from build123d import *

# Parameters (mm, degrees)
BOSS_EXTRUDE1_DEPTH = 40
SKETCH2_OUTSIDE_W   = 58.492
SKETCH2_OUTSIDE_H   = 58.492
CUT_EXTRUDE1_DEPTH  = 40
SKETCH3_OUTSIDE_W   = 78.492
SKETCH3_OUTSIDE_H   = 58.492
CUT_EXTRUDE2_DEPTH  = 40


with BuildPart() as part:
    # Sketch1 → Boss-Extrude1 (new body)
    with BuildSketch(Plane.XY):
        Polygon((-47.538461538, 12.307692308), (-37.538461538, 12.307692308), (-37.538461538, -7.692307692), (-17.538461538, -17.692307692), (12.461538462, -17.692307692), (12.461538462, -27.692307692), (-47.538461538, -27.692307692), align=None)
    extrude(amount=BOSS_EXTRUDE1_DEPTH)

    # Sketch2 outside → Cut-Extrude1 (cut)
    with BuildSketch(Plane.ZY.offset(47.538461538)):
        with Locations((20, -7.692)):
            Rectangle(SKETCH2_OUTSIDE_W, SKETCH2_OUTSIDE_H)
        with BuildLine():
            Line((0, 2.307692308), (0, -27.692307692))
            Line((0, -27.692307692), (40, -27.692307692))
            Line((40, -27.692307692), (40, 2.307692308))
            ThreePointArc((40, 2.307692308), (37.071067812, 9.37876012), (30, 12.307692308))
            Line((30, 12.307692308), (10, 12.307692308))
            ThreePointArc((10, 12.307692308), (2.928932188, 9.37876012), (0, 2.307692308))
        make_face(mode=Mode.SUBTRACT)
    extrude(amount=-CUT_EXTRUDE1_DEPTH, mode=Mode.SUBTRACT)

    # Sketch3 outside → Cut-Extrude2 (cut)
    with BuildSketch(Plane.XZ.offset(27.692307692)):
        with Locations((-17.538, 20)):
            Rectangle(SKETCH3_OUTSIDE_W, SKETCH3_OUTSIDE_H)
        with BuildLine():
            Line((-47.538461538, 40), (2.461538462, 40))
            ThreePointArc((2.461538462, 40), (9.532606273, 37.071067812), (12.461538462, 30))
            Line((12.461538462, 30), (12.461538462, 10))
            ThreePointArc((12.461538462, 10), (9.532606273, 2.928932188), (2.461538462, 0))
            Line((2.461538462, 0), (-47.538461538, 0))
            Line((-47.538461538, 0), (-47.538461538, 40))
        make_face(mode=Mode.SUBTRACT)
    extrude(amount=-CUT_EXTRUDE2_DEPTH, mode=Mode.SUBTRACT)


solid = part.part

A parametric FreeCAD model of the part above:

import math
import FreeCAD as App
import Part
import Sketcher

V = App.Vector
Q = App.Units.Quantity


def add_polygon(sketch, points):
    """Adds a closed chain of lines whose ends are joined by coincident constraints."""
    first, n = sketch.GeometryCount, len(points)
    for a, b in zip(points, points[1:] + points[:1]):
        sketch.addGeometry(Part.LineSegment(App.Vector(*a, 0), App.Vector(*b, 0)), False)
    for i in range(n):
        sketch.addConstraint(Sketcher.Constraint("Coincident", first + i, 2, first + (i + 1) % n, 1))

doc = App.newDocument("Part")
params = doc.addObject("Spreadsheet::Sheet", "Params")
for row, (alias, value) in enumerate([
    ("sketch1_width", "10 mm"),
    ("sketch1_width2", "60 mm"),
    ("sketch1_width3", "30 mm"),
    ("sketch1_height", "40 mm"),
    ("sketch1_height2", "20 mm"),
    ("pad1_length", "40 mm"),
    ("sketch2_radius", "10 mm"),
    ("sketch2_width", "30 mm"),
    ("sketch2_height", "20 mm"),
    ("pocket1_length", "40 mm"),
    ("sketch3_radius", "10 mm"),
    ("sketch3_width", "50 mm"),
    ("sketch3_height", "40 mm"),
    ("pocket2_length", "40 mm"),
], start=1):
    params.set(f"A{row}", alias)
    params.set(f"B{row}", "=" + value)
    params.setAlias(f"B{row}", alias)

body = doc.addObject("PartDesign::Body", "Body")

# Sketch on XY plane
sketch1 = doc.addObject("Sketcher::SketchObject", "Sketch")
body.addObject(sketch1)
sketch1.AttachmentSupport = (doc.XY_Plane, [""])
sketch1.MapMode = "FlatFace"
add_polygon(sketch1, [(-38, 12), (-48, 12), (-48, -28), (12, -28), (12, -18), (-18, -18), (-38, -8)])  # lines 0-6
sketch1.addConstraint(Sketcher.Constraint("Horizontal", 0))
sketch1.addConstraint(Sketcher.Constraint("Vertical", 1))
sketch1.addConstraint(Sketcher.Constraint("Horizontal", 2))
sketch1.addConstraint(Sketcher.Constraint("Vertical", 3))
sketch1.addConstraint(Sketcher.Constraint("Horizontal", 4))
sketch1.addConstraint(Sketcher.Constraint("Vertical", 6))
sketch1.addConstraint(Sketcher.Constraint("Equal", 0, 3))
sketch1.addConstraint(Sketcher.Constraint("DistanceX", 0, 2, 0, 1, Q("10 mm")))
sketch1.addConstraint(Sketcher.Constraint("DistanceX", 2, 1, 2, 2, Q("60 mm")))
sketch1.addConstraint(Sketcher.Constraint("DistanceX", 4, 2, 4, 1, Q("30 mm")))
sketch1.addConstraint(Sketcher.Constraint("DistanceY", 1, 2, 1, 1, Q("40 mm")))
sketch1.addConstraint(Sketcher.Constraint("DistanceY", 6, 1, 6, 2, Q("20 mm")))
sketch1.addConstraint(Sketcher.Constraint("DistanceX", 0, 2, -1, 1, Q("47.538462 mm")))
sketch1.addConstraint(Sketcher.Constraint("DistanceY", -1, 1, 0, 2, Q("12.307692 mm")))
sketch1.setExpression("Constraints[14]", "Params.sketch1_width")
sketch1.setExpression("Constraints[15]", "Params.sketch1_width2")
sketch1.setExpression("Constraints[16]", "Params.sketch1_width3")
sketch1.setExpression("Constraints[17]", "Params.sketch1_height")
sketch1.setExpression("Constraints[18]", "Params.sketch1_height2")
pad1 = doc.addObject("PartDesign::Pad", "Pad")
body.addObject(pad1)
pad1.Profile = sketch1
pad1.setExpression("Length", "Params.pad1_length")

# Sketch on YZ plane
sketch2 = doc.addObject("Sketcher::SketchObject", "Sketch001")
body.addObject(sketch2)
sketch2.AttachmentSupport = (doc.YZ_Plane, [""])
sketch2.MapMode = "FlatFace"
sketch2.AttachmentOffset = App.Placement(V(0, 0, -47.538462), App.Rotation())
add_polygon(sketch2, [(22, -9), (-37, -9), (-37, 49), (22, 49)])  # lines 0-3
sketch2.addGeometry(Part.LineSegment(V(-28, 0, 0), V(2, 0, 0)), False)  # 4
sketch2.addGeometry(Part.ArcOfCircle(Part.Circle(V(2, 10, 0), V(0, 0, 1), 10), math.radians(-90), math.radians(0)), False)  # 5
sketch2.addGeometry(Part.LineSegment(V(12, 10, 0), V(12, 30, 0)), False)  # 6
sketch2.addGeometry(Part.ArcOfCircle(Part.Circle(V(2, 30, 0), V(0, 0, 1), 10), math.radians(0), math.radians(90)), False)  # 7
sketch2.addGeometry(Part.LineSegment(V(2, 40, 0), V(-28, 40, 0)), False)  # 8
sketch2.addGeometry(Part.LineSegment(V(-28, 40, 0), V(-28, 0, 0)), False)  # 9
sketch2.addConstraint(Sketcher.Constraint("Tangent", 4, 2, 5, 1))
sketch2.addConstraint(Sketcher.Constraint("Tangent", 5, 2, 6, 1))
sketch2.addConstraint(Sketcher.Constraint("Tangent", 6, 2, 7, 1))
sketch2.addConstraint(Sketcher.Constraint("Tangent", 7, 2, 8, 1))
sketch2.addConstraint(Sketcher.Constraint("Coincident", 8, 2, 9, 1))
sketch2.addConstraint(Sketcher.Constraint("Coincident", 9, 2, 4, 1))
sketch2.addConstraint(Sketcher.Constraint("Horizontal", 0))
sketch2.addConstraint(Sketcher.Constraint("Vertical", 1))
sketch2.addConstraint(Sketcher.Constraint("Horizontal", 2))
sketch2.addConstraint(Sketcher.Constraint("Vertical", 3))
sketch2.addConstraint(Sketcher.Constraint("Horizontal", 4))
sketch2.addConstraint(Sketcher.Constraint("Vertical", 6))
sketch2.addConstraint(Sketcher.Constraint("Horizontal", 8))
sketch2.addConstraint(Sketcher.Constraint("Vertical", 9))
sketch2.addConstraint(Sketcher.Constraint("Equal", 5, 7))
sketch2.addConstraint(Sketcher.Constraint("PointOnObject", 4, 2, -1))
sketch2.addConstraint(Sketcher.Constraint("Equal", 2, 1))
sketch2.addConstraint(Sketcher.Constraint("Radius", 5, Q("10 mm")))
sketch2.addConstraint(Sketcher.Constraint("DistanceX", 4, 1, 4, 2, Q("30 mm")))
sketch2.addConstraint(Sketcher.Constraint("DistanceY", 6, 1, 6, 2, Q("20 mm")))
sketch2.addConstraint(Sketcher.Constraint("DistanceX", 0, 2, 0, 1, Q("58.492 mm")))
sketch2.addConstraint(Sketcher.Constraint("DistanceX", 0, 2, -1, 1, Q("36.938 mm")))
sketch2.addConstraint(Sketcher.Constraint("DistanceY", 0, 2, -1, 1, Q("9.246 mm")))
sketch2.addConstraint(Sketcher.Constraint("DistanceX", -1, 1, 5, 3, Q("2.307692 mm")))
sketch2.setExpression("Constraints[21]", "Params.sketch2_radius")
sketch2.setExpression("Constraints[22]", "Params.sketch2_width")
sketch2.setExpression("Constraints[23]", "Params.sketch2_height")
pocket1 = doc.addObject("PartDesign::Pocket", "Pocket")
body.addObject(pocket1)
pocket1.Profile = sketch2
pocket1.setExpression("Length", "Params.pocket1_length")
pocket1.Reversed = True

# Sketch on XZ plane
sketch3 = doc.addObject("Sketcher::SketchObject", "Sketch002")
body.addObject(sketch3)
sketch3.AttachmentSupport = (doc.XZ_Plane, [""])
sketch3.MapMode = "FlatFace"
sketch3.AttachmentOffset = App.Placement(V(0, 0, 27.692308), App.Rotation())
add_polygon(sketch3, [(-57, 49), (-57, -9), (22, -9), (22, 49)])  # lines 0-3
sketch3.addGeometry(Part.LineSegment(V(-48, 0, 0), V(-48, 40, 0)), False)  # 4
sketch3.addGeometry(Part.LineSegment(V(-48, 40, 0), V(2, 40, 0)), False)  # 5
sketch3.addGeometry(Part.ArcOfCircle(Part.Circle(V(2, 30, 0), V(0, 0, 1), 10), math.radians(0), math.radians(90)), False)  # 6
sketch3.addGeometry(Part.LineSegment(V(12, 30, 0), V(12, 10, 0)), False)  # 7
sketch3.addGeometry(Part.ArcOfCircle(Part.Circle(V(2, 10, 0), V(0, 0, 1), 10), math.radians(-90), math.radians(0)), False)  # 8
sketch3.addGeometry(Part.LineSegment(V(2, 0, 0), V(-48, 0, 0)), False)  # 9
sketch3.addConstraint(Sketcher.Constraint("Coincident", 4, 2, 5, 1))
sketch3.addConstraint(Sketcher.Constraint("Tangent", 5, 2, 6, 2))
sketch3.addConstraint(Sketcher.Constraint("Tangent", 6, 1, 7, 1))
sketch3.addConstraint(Sketcher.Constraint("Tangent", 7, 2, 8, 2))
sketch3.addConstraint(Sketcher.Constraint("Tangent", 8, 1, 9, 1))
sketch3.addConstraint(Sketcher.Constraint("Coincident", 9, 2, 4, 1))
sketch3.addConstraint(Sketcher.Constraint("Vertical", 0))
sketch3.addConstraint(Sketcher.Constraint("Horizontal", 1))
sketch3.addConstraint(Sketcher.Constraint("Vertical", 2))
sketch3.addConstraint(Sketcher.Constraint("Horizontal", 3))
sketch3.addConstraint(Sketcher.Constraint("Vertical", 4))
sketch3.addConstraint(Sketcher.Constraint("Horizontal", 5))
sketch3.addConstraint(Sketcher.Constraint("Vertical", 7))
sketch3.addConstraint(Sketcher.Constraint("Horizontal", 9))
sketch3.addConstraint(Sketcher.Constraint("Equal", 6, 8))
sketch3.addConstraint(Sketcher.Constraint("PointOnObject", 8, 1, -1))
sketch3.addConstraint(Sketcher.Constraint("Radius", 6, Q("10 mm")))
sketch3.addConstraint(Sketcher.Constraint("DistanceX", 5, 1, 5, 2, Q("50 mm")))
sketch3.addConstraint(Sketcher.Constraint("DistanceY", 4, 1, 4, 2, Q("40 mm")))
sketch3.addConstraint(Sketcher.Constraint("DistanceX", 1, 1, 1, 2, Q("78.492 mm")))
sketch3.addConstraint(Sketcher.Constraint("DistanceY", 0, 2, 0, 1, Q("58.492 mm")))
sketch3.addConstraint(Sketcher.Constraint("DistanceX", 0, 2, -1, 1, Q("56.784 mm")))
sketch3.addConstraint(Sketcher.Constraint("DistanceY", 0, 2, -1, 1, Q("9.246 mm")))
sketch3.addConstraint(Sketcher.Constraint("DistanceX", -1, 1, 6, 3, Q("2.461538 mm")))
sketch3.setExpression("Constraints[20]", "Params.sketch3_radius")
sketch3.setExpression("Constraints[21]", "Params.sketch3_width")
sketch3.setExpression("Constraints[22]", "Params.sketch3_height")
pocket2 = doc.addObject("PartDesign::Pocket", "Pocket001")
body.addObject(pocket2)
pocket2.Profile = sketch3
pocket2.setExpression("Length", "Params.pocket2_length")

doc.recompute()
